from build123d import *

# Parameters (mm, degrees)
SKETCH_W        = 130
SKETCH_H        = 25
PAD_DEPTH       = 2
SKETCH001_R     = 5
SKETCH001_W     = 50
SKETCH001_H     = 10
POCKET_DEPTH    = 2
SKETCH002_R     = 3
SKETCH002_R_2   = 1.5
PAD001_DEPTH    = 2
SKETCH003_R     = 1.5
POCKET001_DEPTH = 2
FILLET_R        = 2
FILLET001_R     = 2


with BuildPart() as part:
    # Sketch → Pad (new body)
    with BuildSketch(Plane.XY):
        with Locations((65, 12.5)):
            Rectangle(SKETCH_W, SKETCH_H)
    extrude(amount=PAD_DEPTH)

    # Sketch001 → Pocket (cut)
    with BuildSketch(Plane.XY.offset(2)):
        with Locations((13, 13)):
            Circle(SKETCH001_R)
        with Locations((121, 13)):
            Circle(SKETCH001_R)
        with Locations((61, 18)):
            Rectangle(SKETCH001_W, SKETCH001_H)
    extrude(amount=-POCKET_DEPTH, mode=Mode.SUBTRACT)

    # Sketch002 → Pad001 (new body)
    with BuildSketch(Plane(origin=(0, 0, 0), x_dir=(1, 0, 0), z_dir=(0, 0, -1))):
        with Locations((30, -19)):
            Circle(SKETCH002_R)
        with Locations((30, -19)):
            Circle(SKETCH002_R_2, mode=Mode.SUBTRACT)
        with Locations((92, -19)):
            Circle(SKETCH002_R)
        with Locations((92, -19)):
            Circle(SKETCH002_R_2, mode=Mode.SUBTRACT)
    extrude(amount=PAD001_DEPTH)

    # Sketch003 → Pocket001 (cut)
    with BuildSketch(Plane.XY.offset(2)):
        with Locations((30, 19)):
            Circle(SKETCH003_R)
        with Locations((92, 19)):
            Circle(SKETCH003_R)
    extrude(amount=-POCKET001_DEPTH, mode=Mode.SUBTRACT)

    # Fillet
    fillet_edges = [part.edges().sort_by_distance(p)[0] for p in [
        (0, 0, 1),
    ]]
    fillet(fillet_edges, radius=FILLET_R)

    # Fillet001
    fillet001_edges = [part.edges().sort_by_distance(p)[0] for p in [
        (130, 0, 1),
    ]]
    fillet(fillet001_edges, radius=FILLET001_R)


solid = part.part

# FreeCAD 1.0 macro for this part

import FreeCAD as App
import Part
import Sketcher

V = App.Vector


def edges_at(feature, points):
    """Names of the edges that pass closest to the given points."""
    edges = feature.Shape.Edges
    near = lambda p: min(range(len(edges)), key=lambda i: edges[i].distToShape(Part.Vertex(*p))[0])
    return sorted({f"Edge{near(p) + 1}" for p in points})

doc = App.newDocument("Part")
body = doc.addObject("PartDesign::Body", "Body")

sketch1 = doc.addObject("Sketcher::SketchObject", "Sketch")
body.addObject(sketch1)
sketch1.AttachmentSupport = (doc.XY_Plane, [""])
sketch1.MapMode = "FlatFace"
sketch1.addGeometry([
    Part.LineSegment(V(0, 25, 0), V(0, 0, 0)),
    Part.LineSegment(V(0, 0, 0), V(130, 0, 0)),
    Part.LineSegment(V(130, 0, 0), V(130, 25, 0)),
    Part.LineSegment(V(130, 25, 0), V(0, 25, 0)),
], False)
sketch1.addConstraint([
    Sketcher.Constraint("Coincident", 0, 2, 1, 1),
    Sketcher.Constraint("Coincident", 1, 2, 2, 1),
    Sketcher.Constraint("Coincident", 2, 2, 3, 1),
    Sketcher.Constraint("Coincident", 3, 2, 0, 1),
    Sketcher.Constraint("Vertical", 0),
    Sketcher.Constraint("Horizontal", 1),
    Sketcher.Constraint("Vertical", 2),
    Sketcher.Constraint("Horizontal", 3),
    Sketcher.Constraint("Coincident", 0, 2, -1, 1),
    Sketcher.Constraint("DistanceX", 1, 1, 1, 2, 130.0),
    Sketcher.Constraint("DistanceY", 0, 2, 0, 1, 25.0),
])
pad1 = doc.addObject("PartDesign::Pad", "Pad")
body.addObject(pad1)
pad1.Profile = sketch1
pad1.Length = 2

sketch2 = doc.addObject("Sketcher::SketchObject", "Sketch001")
body.addObject(sketch2)
sketch2.AttachmentSupport = (doc.XY_Plane, [""])
sketch2.MapMode = "FlatFace"
sketch2.AttachmentOffset = App.Placement(V(0, 0, 2), App.Rotation())
sketch2.addGeometry([
    Part.Circle(V(13, 13, 0), V(0, 0, 1), 5),
    Part.Circle(V(121, 13, 0), V(0, 0, 1), 5),
    Part.LineSegment(V(36, 23, 0), V(36, 13, 0)),
    Part.LineSegment(V(36, 13, 0), V(86, 13, 0)),
    Part.LineSegment(V(86, 13, 0), V(86, 23, 0)),
    Part.LineSegment(V(86, 23, 0), V(36, 23, 0)),
], False)
sketch2.addConstraint([
    Sketcher.Constraint("Coincident", 2, 2, 3, 1),
    Sketcher.Constraint("Coincident", 3, 2, 4, 1),
    Sketcher.Constraint("Coincident", 4, 2, 5, 1),
    Sketcher.Constraint("Coincident", 5, 2, 2, 1),
    Sketcher.Constraint("Vertical", 2),
    Sketcher.Constraint("Horizontal", 3),
    Sketcher.Constraint("Vertical", 4),
    Sketcher.Constraint("Horizontal", 5),
    Sketcher.Constraint("Equal", 0, 1),
    Sketcher.Constraint("Horizontal", 0, 3, 1, 3),
    Sketcher.Constraint("Horizontal", 1, 3, 2, 2),
    Sketcher.Constraint("Diameter", 0, 10.0),
    Sketcher.Constraint("DistanceX", 3, 1, 3, 2, 50.0),
    Sketcher.Constraint("DistanceY", 2, 2, 2, 1, 10.0),
    Sketcher.Constraint("DistanceX", -1, 1, 0, 3, 13.0),
    Sketcher.Constraint("DistanceY", -1, 1, 0, 3, 13.0),
    Sketcher.Constraint("DistanceX", -1, 1, 1, 3, 121.0),
    Sketcher.Constraint("DistanceX", -1, 1, 2, 2, 36.0),
])
pocket1 = doc.addObject("PartDesign::Pocket", "Pocket")
body.addObject(pocket1)
pocket1.Profile = sketch2
pocket1.Length = 2

sketch3 = doc.addObject("Sketcher::SketchObject", "Sketch002")
body.addObject(sketch3)
sketch3.AttachmentSupport = (doc.XY_Plane, [""])
sketch3.MapMode = "FlatFace"
sketch3.addGeometry([
    Part.Circle(V(30, 19, 0), V(0, 0, 1), 3),
    Part.Circle(V(30, 19, 0), V(0, 0, 1), 1.5),
    Part.Circle(V(92, 19, 0), V(0, 0, 1), 3),
    Part.Circle(V(92, 19, 0), V(0, 0, 1), 1.5),
], False)
sketch3.addConstraint([
    Sketcher.Constraint("Coincident", 1, 3, 0, 3),
    Sketcher.Constraint("Coincident", 3, 3, 2, 3),
    Sketcher.Constraint("Equal", 0, 2),
    Sketcher.Constraint("Equal", 1, 3),
    Sketcher.Constraint("Horizontal", 1, 3, 2, 3),
    Sketcher.Constraint("Diameter", 0, 6.0),
    Sketcher.Constraint("Diameter", 1, 3.0),
    Sketcher.Constraint("DistanceX", -1, 1, 0, 3, 30.0),
    Sketcher.Constraint("DistanceY", -1, 1, 0, 3, 19.0),
    Sketcher.Constraint("DistanceX", -1, 1, 2, 3, 92.0),
])
pad2 = doc.addObject("PartDesign::Pad", "Pad001")
body.addObject(pad2)
pad2.Profile = sketch3
pad2.Length = 2
pad2.Reversed = True

sketch4 = doc.addObject("Sketcher::SketchObject", "Sketch003")
body.addObject(sketch4)
sketch4.AttachmentSupport = (doc.XY_Plane, [""])
sketch4.MapMode = "FlatFace"
sketch4.AttachmentOffset = App.Placement(V(0, 0, 2), App.Rotation())
sketch4.addGeometry([
    Part.Circle(V(30, 19, 0), V(0, 0, 1), 1.5),
    Part.Circle(V(92, 19, 0), V(0, 0, 1), 1.5),
], False)
sketch4.addConstraint([
    Sketcher.Constraint("Equal", 0, 1),
    Sketcher.Constraint("Horizontal", 0, 3, 1, 3),
    Sketcher.Constraint("Diameter", 0, 3.0),
    Sketcher.Constraint("DistanceX", -1, 1, 0, 3, 30.0),
    Sketcher.Constraint("DistanceY", -1, 1, 0, 3, 19.0),
    Sketcher.Constraint("DistanceX", -1, 1, 1, 3, 92.0),
])
pocket2 = doc.addObject("PartDesign::Pocket", "Pocket001")
body.addObject(pocket2)
pocket2.Profile = sketch4
pocket2.Length = 2
doc.recompute()

fillet = doc.addObject("PartDesign::Fillet", "Fillet")
body.addObject(fillet)
fillet.Base = (pocket2, edges_at(pocket2, [(0, 0, 1)]))
fillet.Radius = 2
doc.recompute()

fillet2 = doc.addObject("PartDesign::Fillet", "Fillet001")
body.addObject(fillet2)
fillet2.Base = (fillet, edges_at(fillet, [(130, 0, 1)]))
fillet2.Radius = 2

doc.recompute()
